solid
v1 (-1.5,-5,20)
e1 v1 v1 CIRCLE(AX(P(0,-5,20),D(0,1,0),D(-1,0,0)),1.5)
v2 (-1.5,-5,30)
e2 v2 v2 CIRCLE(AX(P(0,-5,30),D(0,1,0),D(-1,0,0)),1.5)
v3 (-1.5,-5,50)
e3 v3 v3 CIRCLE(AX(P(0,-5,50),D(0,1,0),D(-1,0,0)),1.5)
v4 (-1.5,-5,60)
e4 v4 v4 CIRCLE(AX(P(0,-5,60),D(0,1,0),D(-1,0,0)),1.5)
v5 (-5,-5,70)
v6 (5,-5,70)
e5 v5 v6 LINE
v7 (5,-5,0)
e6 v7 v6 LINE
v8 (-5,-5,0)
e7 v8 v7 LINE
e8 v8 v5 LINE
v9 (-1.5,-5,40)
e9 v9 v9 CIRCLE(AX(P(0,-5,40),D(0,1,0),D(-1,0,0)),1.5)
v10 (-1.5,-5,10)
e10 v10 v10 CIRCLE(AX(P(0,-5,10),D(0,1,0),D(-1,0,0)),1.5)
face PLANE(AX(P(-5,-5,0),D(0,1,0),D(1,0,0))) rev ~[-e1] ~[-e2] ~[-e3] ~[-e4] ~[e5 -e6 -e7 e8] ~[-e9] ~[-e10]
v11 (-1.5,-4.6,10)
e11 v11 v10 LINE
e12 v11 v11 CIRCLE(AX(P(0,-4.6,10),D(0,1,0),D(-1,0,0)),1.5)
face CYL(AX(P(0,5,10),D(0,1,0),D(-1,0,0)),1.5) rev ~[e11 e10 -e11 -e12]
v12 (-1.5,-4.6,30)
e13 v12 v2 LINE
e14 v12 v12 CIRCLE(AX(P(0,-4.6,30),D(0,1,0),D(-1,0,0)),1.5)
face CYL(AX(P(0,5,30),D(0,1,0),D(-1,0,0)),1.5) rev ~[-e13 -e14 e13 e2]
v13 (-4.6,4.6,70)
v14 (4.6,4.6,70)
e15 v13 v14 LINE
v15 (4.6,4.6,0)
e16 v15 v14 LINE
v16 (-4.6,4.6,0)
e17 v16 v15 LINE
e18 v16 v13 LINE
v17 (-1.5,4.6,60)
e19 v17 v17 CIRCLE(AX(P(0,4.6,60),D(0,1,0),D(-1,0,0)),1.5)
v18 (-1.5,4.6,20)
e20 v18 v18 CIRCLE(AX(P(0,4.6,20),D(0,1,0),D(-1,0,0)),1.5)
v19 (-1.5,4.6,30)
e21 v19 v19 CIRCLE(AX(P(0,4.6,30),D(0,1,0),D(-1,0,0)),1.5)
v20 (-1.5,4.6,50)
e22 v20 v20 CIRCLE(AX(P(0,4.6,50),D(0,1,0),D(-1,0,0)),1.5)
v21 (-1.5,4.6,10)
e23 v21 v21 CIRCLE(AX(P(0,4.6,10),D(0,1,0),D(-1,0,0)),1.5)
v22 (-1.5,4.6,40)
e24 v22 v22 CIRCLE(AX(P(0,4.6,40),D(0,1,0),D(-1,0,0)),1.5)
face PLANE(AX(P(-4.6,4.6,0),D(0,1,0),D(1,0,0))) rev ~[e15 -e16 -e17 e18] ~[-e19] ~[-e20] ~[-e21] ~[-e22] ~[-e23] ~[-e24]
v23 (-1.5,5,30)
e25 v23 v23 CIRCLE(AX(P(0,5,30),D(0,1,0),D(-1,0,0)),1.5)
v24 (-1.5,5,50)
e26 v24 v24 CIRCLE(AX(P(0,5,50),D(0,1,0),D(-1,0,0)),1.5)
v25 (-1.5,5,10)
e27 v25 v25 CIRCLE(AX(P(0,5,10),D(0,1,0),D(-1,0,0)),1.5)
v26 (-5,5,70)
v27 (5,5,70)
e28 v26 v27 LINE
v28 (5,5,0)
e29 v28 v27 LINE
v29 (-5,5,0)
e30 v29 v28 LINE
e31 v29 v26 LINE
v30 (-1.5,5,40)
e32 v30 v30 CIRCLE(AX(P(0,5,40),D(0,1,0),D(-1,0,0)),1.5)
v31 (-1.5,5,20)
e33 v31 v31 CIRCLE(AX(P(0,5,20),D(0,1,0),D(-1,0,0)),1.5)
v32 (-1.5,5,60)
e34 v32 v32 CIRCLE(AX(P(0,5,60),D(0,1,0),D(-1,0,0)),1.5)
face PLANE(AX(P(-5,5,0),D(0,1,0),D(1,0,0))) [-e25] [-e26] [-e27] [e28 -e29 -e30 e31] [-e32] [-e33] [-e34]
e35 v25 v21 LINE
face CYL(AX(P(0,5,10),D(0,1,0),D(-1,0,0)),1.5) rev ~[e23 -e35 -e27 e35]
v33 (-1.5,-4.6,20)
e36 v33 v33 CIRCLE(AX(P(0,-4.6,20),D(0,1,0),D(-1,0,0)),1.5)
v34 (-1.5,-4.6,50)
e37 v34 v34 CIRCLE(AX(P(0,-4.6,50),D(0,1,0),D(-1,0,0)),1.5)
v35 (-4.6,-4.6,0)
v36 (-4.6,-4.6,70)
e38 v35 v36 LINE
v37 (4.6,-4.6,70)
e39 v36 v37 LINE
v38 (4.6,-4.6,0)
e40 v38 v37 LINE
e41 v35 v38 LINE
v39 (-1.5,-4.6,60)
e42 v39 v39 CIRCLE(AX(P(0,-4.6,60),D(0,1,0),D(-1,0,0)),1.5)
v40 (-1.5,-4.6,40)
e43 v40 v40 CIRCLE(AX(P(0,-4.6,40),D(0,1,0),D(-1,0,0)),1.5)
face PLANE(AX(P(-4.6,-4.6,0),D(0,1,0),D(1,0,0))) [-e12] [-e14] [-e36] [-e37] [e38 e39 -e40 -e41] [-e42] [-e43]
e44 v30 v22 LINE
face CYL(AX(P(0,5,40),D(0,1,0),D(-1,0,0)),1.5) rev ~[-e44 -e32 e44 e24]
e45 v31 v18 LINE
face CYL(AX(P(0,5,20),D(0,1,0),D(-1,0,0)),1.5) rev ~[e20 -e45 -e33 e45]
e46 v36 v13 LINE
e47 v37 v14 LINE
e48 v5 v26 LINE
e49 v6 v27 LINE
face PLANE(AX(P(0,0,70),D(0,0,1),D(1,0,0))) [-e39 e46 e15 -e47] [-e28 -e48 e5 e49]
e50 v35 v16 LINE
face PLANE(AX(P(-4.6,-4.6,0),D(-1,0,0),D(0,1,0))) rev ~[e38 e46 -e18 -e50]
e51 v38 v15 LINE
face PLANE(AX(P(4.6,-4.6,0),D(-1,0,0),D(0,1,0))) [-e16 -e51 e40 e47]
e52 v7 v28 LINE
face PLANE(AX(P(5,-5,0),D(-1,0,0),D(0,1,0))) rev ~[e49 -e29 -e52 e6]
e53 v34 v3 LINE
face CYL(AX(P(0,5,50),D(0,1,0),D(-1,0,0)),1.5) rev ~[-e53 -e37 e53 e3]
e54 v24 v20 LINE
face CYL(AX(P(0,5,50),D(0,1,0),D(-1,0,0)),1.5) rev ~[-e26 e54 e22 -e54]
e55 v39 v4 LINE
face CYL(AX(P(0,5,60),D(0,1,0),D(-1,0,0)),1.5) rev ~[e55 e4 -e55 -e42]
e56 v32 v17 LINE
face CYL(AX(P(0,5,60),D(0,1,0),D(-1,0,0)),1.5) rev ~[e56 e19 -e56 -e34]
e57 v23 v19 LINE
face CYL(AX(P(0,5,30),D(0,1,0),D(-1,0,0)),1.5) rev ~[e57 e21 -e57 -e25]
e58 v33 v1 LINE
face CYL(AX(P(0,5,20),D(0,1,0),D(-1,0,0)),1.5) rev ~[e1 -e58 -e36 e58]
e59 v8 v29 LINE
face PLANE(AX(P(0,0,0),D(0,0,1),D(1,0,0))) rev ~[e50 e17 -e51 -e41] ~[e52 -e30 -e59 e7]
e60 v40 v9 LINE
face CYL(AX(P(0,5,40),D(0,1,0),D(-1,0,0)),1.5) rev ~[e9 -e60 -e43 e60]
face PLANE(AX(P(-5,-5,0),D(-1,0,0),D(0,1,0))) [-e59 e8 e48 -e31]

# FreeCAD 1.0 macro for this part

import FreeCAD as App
import Part
import Sketcher
Q = App.Units.Quantity

doc = App.newDocument("Part")
body = doc.addObject("PartDesign::Body", "Body")

# Sketch on XY plane
sketch1 = body.newObject("Sketcher::SketchObject", "Sketch")
sketch1.AttachmentSupport = (doc.getObject("XY_Plane"), [""])
sketch1.MapMode = "FlatFace"
sketch1.addGeometry([
    Part.LineSegment(App.Vector(-5, 5, 0), App.Vector(-5, -5, 0)),  # 0
    Part.LineSegment(App.Vector(-5, -5, 0), App.Vector(5, -5, 0)),  # 1
    Part.LineSegment(App.Vector(5, -5, 0), App.Vector(5, 5, 0)),  # 2
    Part.LineSegment(App.Vector(5, 5, 0), App.Vector(-5, 5, 0)),  # 3
    Part.LineSegment(App.Vector(4.6, -4.6, 0), App.Vector(-4.6, -4.6, 0)),  # 4
    Part.LineSegment(App.Vector(-4.6, -4.6, 0), App.Vector(-4.6, 4.6, 0)),  # 5
    Part.LineSegment(App.Vector(-4.6, 4.6, 0), App.Vector(4.6, 4.6, 0)),  # 6
    Part.LineSegment(App.Vector(4.6, 4.6, 0), App.Vector(4.6, -4.6, 0)),  # 7
], False)
sketch1.addConstraint([
    Sketcher.Constraint("Coincident", 0, 2, 1, 1),
    Sketcher.Constraint("Coincident", 1, 2, 2, 1),
    Sketcher.Constraint("Coincident", 2, 2, 3, 1),
    Sketcher.Constraint("Coincident", 3, 2, 0, 1),
    Sketcher.Constraint("Coincident", 4, 2, 5, 1),
    Sketcher.Constraint("Coincident", 5, 2, 6, 1),
    Sketcher.Constraint("Coincident", 6, 2, 7, 1),
    Sketcher.Constraint("Coincident", 7, 2, 4, 1),
    Sketcher.Constraint("Vertical", 0),
    Sketcher.Constraint("Horizontal", 1),
    Sketcher.Constraint("Vertical", 2),
    Sketcher.Constraint("Horizontal", 3),
    Sketcher.Constraint("Horizontal", 4),
    Sketcher.Constraint("Vertical", 5),
    Sketcher.Constraint("Horizontal", 6),
    Sketcher.Constraint("Vertical", 7),
    Sketcher.Constraint("Symmetric", 0, 2, 2, 2, -1, 1),
    Sketcher.Constraint("Symmetric", 4, 2, 6, 2, -1, 1),
    Sketcher.Constraint("Equal", 3, 0),
    Sketcher.Constraint("Equal", 6, 5),
    Sketcher.Constraint("DistanceX", 1, 1, 1, 2, Q("10 mm")),
    Sketcher.Constraint("DistanceX", 4, 2, 4, 1, Q("9.2 mm")),
])
pad1 = body.newObject("PartDesign::Pad", "Pad")
pad1.Profile = sketch1
pad1.Length = 70

# Sketch on XZ plane
sketch2 = body.newObject("Sketcher::SketchObject", "Sketch001")
sketch2.AttachmentSupport = (doc.getObject("XZ_Plane"), [""])
sketch2.MapMode = "FlatFace"
sketch2.AttachmentOffset = App.Placement(App.Vector(0, 0, -5), App.Rotation())
sketch2.addGeometry([
    Part.Circle(App.Vector(0, 60, 0), App.Vector(0, 0, 1), 1.5),  # 0
    Part.Circle(App.Vector(0, 50, 0), App.Vector(0, 0, 1), 1.5),  # 1
    Part.Circle(App.Vector(0, 40, 0), App.Vector(0, 0, 1), 1.5),  # 2
    Part.Circle(App.Vector(0, 30, 0), App.Vector(0, 0, 1), 1.5),  # 3
    Part.Circle(App.Vector(0, 20, 0), App.Vector(0, 0, 1), 1.5),  # 4
    Part.Circle(App.Vector(0, 10, 0), App.Vector(0, 0, 1), 1.5),  # 5
], False)
sketch2.addConstraint([
    Sketcher.Constraint("Equal", 0, 1),
    Sketcher.Constraint("Equal", 1, 2),
    Sketcher.Constraint("Equal", 2, 3),
    Sketcher.Constraint("Equal", 3, 4),
    Sketcher.Constraint("Equal", 4, 5),
    Sketcher.Constraint("PointOnObject", 0, 3, -2),
    Sketcher.Constraint("PointOnObject", 1, 3, -2),
    Sketcher.Constraint("PointOnObject", 2, 3, -2),
    Sketcher.Constraint("PointOnObject", 3, 3, -2),
    Sketcher.Constraint("PointOnObject", 4, 3, -2),
    Sketcher.Constraint("PointOnObject", 5, 3, -2),
    Sketcher.Constraint("Diameter", 0, Q("3 mm")),
    Sketcher.Constraint("DistanceY", -1, 1, 0, 3, Q("60 mm")),
    Sketcher.Constraint("DistanceY", -1, 1, 1, 3, Q("50 mm")),
    Sketcher.Constraint("DistanceY", -1, 1, 2, 3, Q("40 mm")),
    Sketcher.Constraint("DistanceY", -1, 1, 3, 3, Q("30 mm")),
    Sketcher.Constraint("DistanceY", -1, 1, 4, 3, Q("20 mm")),
    Sketcher.Constraint("DistanceY", -1, 1, 5, 3, Q("10 mm")),
])
pocket1 = body.newObject("PartDesign::Pocket", "Pocket")
pocket1.Profile = sketch2
pocket1.Length = 25
pocket1.Reversed = True

doc.recompute()
